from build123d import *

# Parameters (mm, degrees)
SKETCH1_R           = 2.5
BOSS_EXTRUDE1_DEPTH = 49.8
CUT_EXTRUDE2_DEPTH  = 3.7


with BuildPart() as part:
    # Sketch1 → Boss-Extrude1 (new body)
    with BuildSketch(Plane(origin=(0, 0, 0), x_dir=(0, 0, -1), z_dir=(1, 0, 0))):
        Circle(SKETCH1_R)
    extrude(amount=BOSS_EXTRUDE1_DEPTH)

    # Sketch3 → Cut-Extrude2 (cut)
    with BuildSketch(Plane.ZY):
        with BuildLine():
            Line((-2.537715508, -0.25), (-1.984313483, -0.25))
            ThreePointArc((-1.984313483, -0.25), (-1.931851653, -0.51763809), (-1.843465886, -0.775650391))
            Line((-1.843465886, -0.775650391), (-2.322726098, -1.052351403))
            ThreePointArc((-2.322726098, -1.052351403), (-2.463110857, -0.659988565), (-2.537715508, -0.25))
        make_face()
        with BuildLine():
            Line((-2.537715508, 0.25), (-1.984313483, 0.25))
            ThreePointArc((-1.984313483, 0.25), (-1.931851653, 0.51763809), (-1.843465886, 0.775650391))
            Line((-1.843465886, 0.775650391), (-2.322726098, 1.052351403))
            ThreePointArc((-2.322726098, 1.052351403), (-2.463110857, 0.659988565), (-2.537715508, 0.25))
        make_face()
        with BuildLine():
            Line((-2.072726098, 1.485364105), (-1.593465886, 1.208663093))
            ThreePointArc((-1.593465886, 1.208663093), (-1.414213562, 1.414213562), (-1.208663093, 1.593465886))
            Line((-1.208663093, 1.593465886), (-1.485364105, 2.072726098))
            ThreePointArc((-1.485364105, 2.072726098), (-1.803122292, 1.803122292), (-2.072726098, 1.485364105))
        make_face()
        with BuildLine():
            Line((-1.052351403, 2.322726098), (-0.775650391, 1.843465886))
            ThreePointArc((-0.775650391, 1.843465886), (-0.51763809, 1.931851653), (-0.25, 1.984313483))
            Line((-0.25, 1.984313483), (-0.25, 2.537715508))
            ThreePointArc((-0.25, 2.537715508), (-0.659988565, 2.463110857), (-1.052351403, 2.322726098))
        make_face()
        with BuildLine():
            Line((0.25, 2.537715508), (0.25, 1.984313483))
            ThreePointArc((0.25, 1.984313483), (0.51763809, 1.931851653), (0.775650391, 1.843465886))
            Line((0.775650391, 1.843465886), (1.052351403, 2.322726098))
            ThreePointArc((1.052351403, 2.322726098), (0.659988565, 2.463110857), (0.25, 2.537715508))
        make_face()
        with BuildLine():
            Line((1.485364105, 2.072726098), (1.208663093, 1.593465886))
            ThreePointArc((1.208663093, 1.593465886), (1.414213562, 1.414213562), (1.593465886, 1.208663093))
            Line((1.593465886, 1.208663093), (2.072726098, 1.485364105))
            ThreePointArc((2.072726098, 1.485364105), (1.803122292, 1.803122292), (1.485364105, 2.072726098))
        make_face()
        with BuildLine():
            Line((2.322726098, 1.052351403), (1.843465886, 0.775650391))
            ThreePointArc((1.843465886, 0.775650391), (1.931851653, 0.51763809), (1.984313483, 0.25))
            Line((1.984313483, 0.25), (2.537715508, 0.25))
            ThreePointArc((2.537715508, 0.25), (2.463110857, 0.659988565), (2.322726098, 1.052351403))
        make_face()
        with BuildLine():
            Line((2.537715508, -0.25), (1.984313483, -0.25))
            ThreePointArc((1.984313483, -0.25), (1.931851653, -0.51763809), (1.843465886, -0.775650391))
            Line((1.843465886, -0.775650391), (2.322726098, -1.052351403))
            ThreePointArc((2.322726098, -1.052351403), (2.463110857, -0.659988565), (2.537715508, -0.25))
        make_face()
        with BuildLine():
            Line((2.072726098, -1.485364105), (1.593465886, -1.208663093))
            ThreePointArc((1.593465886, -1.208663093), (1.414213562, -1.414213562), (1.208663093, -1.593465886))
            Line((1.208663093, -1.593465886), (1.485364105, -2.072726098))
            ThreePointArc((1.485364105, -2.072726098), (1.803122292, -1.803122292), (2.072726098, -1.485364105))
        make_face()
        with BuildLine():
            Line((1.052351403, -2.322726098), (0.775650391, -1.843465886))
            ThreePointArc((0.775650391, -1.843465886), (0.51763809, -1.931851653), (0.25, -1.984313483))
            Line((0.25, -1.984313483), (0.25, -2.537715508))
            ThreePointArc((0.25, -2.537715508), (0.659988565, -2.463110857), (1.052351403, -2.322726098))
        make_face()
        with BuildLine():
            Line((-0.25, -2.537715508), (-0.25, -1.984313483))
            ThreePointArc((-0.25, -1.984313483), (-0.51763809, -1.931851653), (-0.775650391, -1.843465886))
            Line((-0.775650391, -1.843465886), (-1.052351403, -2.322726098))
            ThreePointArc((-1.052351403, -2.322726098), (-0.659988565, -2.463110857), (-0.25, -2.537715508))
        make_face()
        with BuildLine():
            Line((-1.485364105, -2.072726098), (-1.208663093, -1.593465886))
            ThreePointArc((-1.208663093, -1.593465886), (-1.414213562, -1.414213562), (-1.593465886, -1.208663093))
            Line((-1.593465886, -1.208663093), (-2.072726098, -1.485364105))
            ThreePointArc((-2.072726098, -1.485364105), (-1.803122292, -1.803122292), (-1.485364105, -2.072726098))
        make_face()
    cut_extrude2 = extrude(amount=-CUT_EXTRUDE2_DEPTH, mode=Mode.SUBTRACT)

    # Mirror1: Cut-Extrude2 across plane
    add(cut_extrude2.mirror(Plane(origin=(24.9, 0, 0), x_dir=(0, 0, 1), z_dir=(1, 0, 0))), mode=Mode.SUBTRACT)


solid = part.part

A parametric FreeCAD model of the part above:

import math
import FreeCAD as App
import Part
import Sketcher
from FreeCAD import Vector
Q = App.Units.Quantity

doc = App.newDocument("Part")
body = doc.addObject("PartDesign::Body", "Body")

sketch1 = body.newObject("Sketcher::SketchObject", "Sketch")
sketch1.AttachmentSupport = (doc.getObject("YZ_Plane"), [""])
sketch1.MapMode = "FlatFace"
sketch1.addGeometry(Part.Circle(Vector(0, 0, 0), Vector(0, 0, 1), 2.5), False)
sketch1.addConstraint([
    Sketcher.Constraint("Coincident", 0, 3, -1, 1),
    Sketcher.Constraint("Diameter", 0, 5.0),
])
pad1 = body.newObject("PartDesign::Pad", "Pad")
pad1.Profile = sketch1
pad1.Length = 49.8

sketch2 = body.newObject("Sketcher::SketchObject", "Sketch001")
sketch2.AttachmentSupport = (doc.getObject("YZ_Plane"), [""])
sketch2.MapMode = "FlatFace"
sketch2.addGeometry([
    Part.LineSegment(Vector(-0.2, -2, 0), Vector(-0.2, -2.5, 0)),
    Part.ArcOfCircle(Part.Circle(Vector(0, 0, 0), Vector(0, 0, 1), 2.6), math.radians(-114.37), math.radians(-95.63)),
    Part.LineSegment(Vector(-1.1, -2.3, 0), Vector(-0.8, -1.8, 0)),
    Part.ArcOfCircle(Part.Circle(Vector(0, 0, 0), Vector(0, 0, 1), 2), math.radians(-112.82), math.radians(-97.18)),
    Part.LineSegment(Vector(0.2, -2.5, 0), Vector(0.2, -2, 0)),
    Part.ArcOfCircle(Part.Circle(Vector(0, 0, 0), Vector(0, 0, 1), 2), math.radians(-82.82), math.radians(-67.18)),
    Part.LineSegment(Vector(0.8, -1.8, 0), Vector(1.1, -2.3, 0)),
    Part.ArcOfCircle(Part.Circle(Vector(0, 0, 0), Vector(0, 0, 1), 2.6), math.radians(-84.37), math.radians(-65.63)),
    Part.LineSegment(Vector(1.5, -2.1, 0), Vector(1.2, -1.6, 0)),
    Part.ArcOfCircle(Part.Circle(Vector(0, 0, 0), Vector(0, 0, 1), 2), math.radians(-52.82), math.radians(-37.18)),
    Part.LineSegment(Vector(1.6, -1.2, 0), Vector(2.1, -1.5, 0)),
    Part.ArcOfCircle(Part.Circle(Vector(0, 0, 0), Vector(0, 0, 1), 2.6), math.radians(-54.37), math.radians(-35.63)),
    Part.LineSegment(Vector(2.3, -1.1, 0), Vector(1.8, -0.8, 0)),
    Part.ArcOfCircle(Part.Circle(Vector(0, 0, 0), Vector(0, 0, 1), 2), math.radians(-22.82), math.radians(-7.18)),
    Part.LineSegment(Vector(2, -0.2, 0), Vector(2.5, -0.2, 0)),
    Part.ArcOfCircle(Part.Circle(Vector(0, 0, 0), Vector(0, 0, 1), 2.6), math.radians(-24.37), math.radians(-5.63)),
    Part.LineSegment(Vector(2.5, 0.2, 0), Vector(2, 0.2, 0)),
    Part.ArcOfCircle(Part.Circle(Vector(0, 0, 0), Vector(0, 0, 1), 2), math.radians(7.18), math.radians(22.82)),
    Part.LineSegment(Vector(1.8, 0.8, 0), Vector(2.3, 1.1, 0)),
    Part.ArcOfCircle(Part.Circle(Vector(0, 0, 0), Vector(0, 0, 1), 2.6), math.radians(5.63), math.radians(24.37)),
    Part.LineSegment(Vector(2.1, 1.5, 0), Vector(1.6, 1.2, 0)),
    Part.ArcOfCircle(Part.Circle(Vector(0, 0, 0), Vector(0, 0, 1), 2), math.radians(37.18), math.radians(52.82)),
    Part.LineSegment(Vector(1.2, 1.6, 0), Vector(1.5, 2.1, 0)),
    Part.ArcOfCircle(Part.Circle(Vector(0, 0, 0), Vector(0, 0, 1), 2.6), math.radians(35.63), math.radians(54.37)),
    Part.LineSegment(Vector(1.1, 2.3, 0), Vector(0.8, 1.8, 0)),
    Part.ArcOfCircle(Part.Circle(Vector(0, 0, 0), Vector(0, 0, 1), 2), math.radians(67.18), math.radians(82.82)),
    Part.LineSegment(Vector(0.2, 2, 0), Vector(0.2, 2.5, 0)),
    Part.ArcOfCircle(Part.Circle(Vector(0, 0, 0), Vector(0, 0, 1), 2.6), math.radians(65.63), math.radians(84.37)),
    Part.LineSegment(Vector(-0.2, 2.5, 0), Vector(-0.2, 2, 0)),
    Part.ArcOfCircle(Part.Circle(Vector(0, 0, 0), Vector(0, 0, 1), 2), math.radians(97.18), math.radians(112.82)),
    Part.LineSegment(Vector(-0.8, 1.8, 0), Vector(-1.1, 2.3, 0)),
    Part.ArcOfCircle(Part.Circle(Vector(0, 0, 0), Vector(0, 0, 1), 2.6), math.radians(95.63), math.radians(114.37)),
    Part.LineSegment(Vector(-1.5, 2.1, 0), Vector(-1.2, 1.6, 0)),
    Part.ArcOfCircle(Part.Circle(Vector(0, 0, 0), Vector(0, 0, 1), 2), math.radians(127.18), math.radians(142.82)),
    Part.LineSegment(Vector(-1.6, 1.2, 0), Vector(-2.1, 1.5, 0)),
    Part.ArcOfCircle(Part.Circle(Vector(0, 0, 0), Vector(0, 0, 1), 2.6), math.radians(125.63), math.radians(144.37)),
    Part.LineSegment(Vector(-2.3, 1.1, 0), Vector(-1.8, 0.8, 0)),
    Part.ArcOfCircle(Part.Circle(Vector(0, 0, 0), Vector(0, 0, 1), 2), math.radians(157.18), math.radians(172.82)),
    Part.LineSegment(Vector(-2, 0.2, 0), Vector(-2.5, 0.2, 0)),
    Part.ArcOfCircle(Part.Circle(Vector(0, 0, 0), Vector(0, 0, 1), 2.6), math.radians(155.63), math.radians(174.37)),
    Part.LineSegment(Vector(-2.5, -0.2, 0), Vector(-2, -0.2, 0)),
    Part.ArcOfCircle(Part.Circle(Vector(0, 0, 0), Vector(0, 0, 1), 2), math.radians(-172.82), math.radians(-157.18)),
    Part.LineSegment(Vector(-1.8, -0.8, 0), Vector(-2.3, -1.1, 0)),
    Part.ArcOfCircle(Part.Circle(Vector(0, 0, 0), Vector(0, 0, 1), 2.6), math.radians(-174.37), math.radians(-155.63)),
    Part.LineSegment(Vector(-2.1, -1.5, 0), Vector(-1.6, -1.2, 0)),
    Part.ArcOfCircle(Part.Circle(Vector(0, 0, 0), Vector(0, 0, 1), 2), math.radians(-142.82), math.radians(-127.18)),
    Part.LineSegment(Vector(-1.2, -1.6, 0), Vector(-1.5, -2.1, 0)),
    Part.ArcOfCircle(Part.Circle(Vector(0, 0, 0), Vector(0, 0, 1), 2.6), math.radians(-144.37), math.radians(-125.63)),
], False)
sketch2.addConstraint([
    Sketcher.Constraint("Coincident", 0, 2, 1, 2),
    Sketcher.Constraint("Coincident", 1, 1, 2, 1),
    Sketcher.Constraint("Coincident", 2, 2, 3, 1),
    Sketcher.Constraint("Coincident", 3, 2, 0, 1),
    Sketcher.Constraint("Coincident", 4, 2, 5, 1),
    Sketcher.Constraint("Coincident", 5, 2, 6, 1),
    Sketcher.Constraint("Coincident", 6, 2, 7, 2),
    Sketcher.Constraint("Coincident", 7, 1, 4, 1),
    Sketcher.Constraint("Coincident", 8, 2, 9, 1),
    Sketcher.Constraint("Coincident", 9, 2, 10, 1),
    Sketcher.Constraint("Coincident", 10, 2, 11, 2),
    Sketcher.Constraint("Coincident", 11, 1, 8, 1),
    Sketcher.Constraint("Coincident", 12, 2, 13, 1),
    Sketcher.Constraint("Coincident", 13, 2, 14, 1),
    Sketcher.Constraint("Coincident", 14, 2, 15, 2),
    Sketcher.Constraint("Coincident", 15, 1, 12, 1),
    Sketcher.Constraint("Coincident", 16, 2, 17, 1),
    Sketcher.Constraint("Coincident", 17, 2, 18, 1),
    Sketcher.Constraint("Coincident", 18, 2, 19, 2),
    Sketcher.Constraint("Coincident", 19, 1, 16, 1),
    Sketcher.Constraint("Coincident", 20, 2, 21, 1),
    Sketcher.Constraint("Coincident", 21, 2, 22, 1),
    Sketcher.Constraint("Coincident", 22, 2, 23, 2),
    Sketcher.Constraint("Coincident", 23, 1, 20, 1),
    Sketcher.Constraint("Coincident", 24, 2, 25, 1),
    Sketcher.Constraint("Coincident", 25, 2, 26, 1),
    Sketcher.Constraint("Coincident", 26, 2, 27, 2),
    Sketcher.Constraint("Coincident", 27, 1, 24, 1),
    Sketcher.Constraint("Coincident", 28, 2, 29, 1),
    Sketcher.Constraint("Coincident", 29, 2, 30, 1),
    Sketcher.Constraint("Coincident", 30, 2, 31, 2),
    Sketcher.Constraint("Coincident", 31, 1, 28, 1),
    Sketcher.Constraint("Coincident", 32, 2, 33, 1),
    Sketcher.Constraint("Coincident", 33, 2, 34, 1),
    Sketcher.Constraint("Coincident", 34, 2, 35, 2),
    Sketcher.Constraint("Coincident", 35, 1, 32, 1),
    Sketcher.Constraint("Coincident", 36, 2, 37, 1),
    Sketcher.Constraint("Coincident", 37, 2, 38, 1),
    Sketcher.Constraint("Coincident", 38, 2, 39, 2),
    Sketcher.Constraint("Coincident", 39, 1, 36, 1),
    Sketcher.Constraint("Coincident", 40, 2, 41, 1),
    Sketcher.Constraint("Coincident", 41, 2, 42, 1),
    Sketcher.Constraint("Coincident", 42, 2, 43, 2),
    Sketcher.Constraint("Coincident", 43, 1, 40, 1),
    Sketcher.Constraint("Coincident", 44, 2, 45, 1),
    Sketcher.Constraint("Coincident", 45, 2, 46, 1),
    Sketcher.Constraint("Coincident", 46, 2, 47, 2),
    Sketcher.Constraint("Coincident", 47, 1, 44, 1),
    Sketcher.Constraint("Vertical", 0),
    Sketcher.Constraint("Vertical", 4),
    Sketcher.Constraint("Horizontal", 14),
    Sketcher.Constraint("Horizontal", 16),
    Sketcher.Constraint("Vertical", 26),
    Sketcher.Constraint("Vertical", 28),
    Sketcher.Constraint("Horizontal", 38),
    Sketcher.Constraint("Horizontal", 40),
    Sketcher.Constraint("Coincident", 1, 3, -1, 1),
    Sketcher.Constraint("Coincident", 3, 3, -1, 1),
    Sketcher.Constraint("Coincident", 5, 3, -1, 1),
    Sketcher.Constraint("Coincident", 7, 3, -1, 1),
    Sketcher.Constraint("Coincident", 9, 3, -1, 1),
    Sketcher.Constraint("Coincident", 11, 3, -1, 1),
    Sketcher.Constraint("Coincident", 13, 3, -1, 1),
    Sketcher.Constraint("Coincident", 15, 3, -1, 1),
    Sketcher.Constraint("Coincident", 17, 3, -1, 1),
    Sketcher.Constraint("Coincident", 19, 3, -1, 1),
    Sketcher.Constraint("Coincident", 21, 3, -1, 1),
    Sketcher.Constraint("Coincident", 23, 3, -1, 1),
    Sketcher.Constraint("Coincident", 25, 3, -1, 1),
    Sketcher.Constraint("Coincident", 27, 3, -1, 1),
    Sketcher.Constraint("Coincident", 29, 3, -1, 1),
    Sketcher.Constraint("Coincident", 31, 3, -1, 1),
    Sketcher.Constraint("Coincident", 33, 3, -1, 1),
    Sketcher.Constraint("Coincident", 35, 3, -1, 1),
    Sketcher.Constraint("Coincident", 37, 3, -1, 1),
    Sketcher.Constraint("Coincident", 39, 3, -1, 1),
    Sketcher.Constraint("Coincident", 41, 3, -1, 1),
    Sketcher.Constraint("Coincident", 43, 3, -1, 1),
    Sketcher.Constraint("Coincident", 45, 3, -1, 1),
    Sketcher.Constraint("Coincident", 47, 3, -1, 1),
    Sketcher.Constraint("Equal", 3, 5),
    Sketcher.Constraint("Equal", 1, 7),
    Sketcher.Constraint("Equal", 5, 9),
    Sketcher.Constraint("Equal", 7, 11),
    Sketcher.Constraint("Equal", 9, 13),
    Sketcher.Constraint("Equal", 11, 15),
    Sketcher.Constraint("Equal", 13, 17),
    Sketcher.Constraint("Equal", 15, 19),
    Sketcher.Constraint("Equal", 17, 21),
    Sketcher.Constraint("Equal", 19, 23),
    Sketcher.Constraint("Equal", 21, 25),
    Sketcher.Constraint("Equal", 23, 27),
    Sketcher.Constraint("Equal", 25, 29),
    Sketcher.Constraint("Equal", 27, 31),
    Sketcher.Constraint("Equal", 29, 33),
    Sketcher.Constraint("Equal", 31, 35),
    Sketcher.Constraint("Equal", 33, 37),
    Sketcher.Constraint("Equal", 35, 39),
    Sketcher.Constraint("Equal", 37, 41),
    Sketcher.Constraint("Equal", 39, 43),
    Sketcher.Constraint("Equal", 41, 45),
    Sketcher.Constraint("Equal", 43, 47),
    Sketcher.Constraint("Parallel", 6, 8),
    Sketcher.Constraint("Perpendicular", 2, 10),
    Sketcher.Constraint("Parallel", 10, 12),
    Sketcher.Constraint("Perpendicular", 8, 18),
    Sketcher.Constraint("Parallel", 18, 20),
    Sketcher.Constraint("Perpendicular", 12, 22),
    Sketcher.Constraint("Parallel", 22, 24),
    Sketcher.Constraint("Perpendicular", 20, 30),
    Sketcher.Constraint("Parallel", 30, 32),
    Sketcher.Constraint("Perpendicular", 24, 34),
    Sketcher.Constraint("Parallel", 34, 36),
    Sketcher.Constraint("Perpendicular", 32, 42),
    Sketcher.Constraint("Parallel", 42, 44),
    Sketcher.Constraint("Perpendicular", 36, 46),
    Sketcher.Constraint("Horizontal", 3, 2, 4, 2),
    Sketcher.Constraint("Horizontal", 2, 2, 5, 2),
    Sketcher.Constraint("Horizontal", 1, 1, 6, 2),
    Sketcher.Constraint("Horizontal", 25, 2, 28, 2),
    Sketcher.Constraint("Horizontal", 24, 2, 29, 2),
    Sketcher.Constraint("Horizontal", 21, 2, 32, 2),
    Sketcher.Constraint("Horizontal", 20, 2, 33, 2),
    Sketcher.Constraint("Horizontal", 17, 2, 36, 2),
    Sketcher.Constraint("Horizontal", 19, 1, 37, 2),
    Sketcher.Constraint("Horizontal", 14, 2, 40, 2),
    Sketcher.Constraint("Horizontal", 12, 2, 41, 2),
    Sketcher.Constraint("Horizontal", 9, 2, 44, 2),
    Sketcher.Constraint("Horizontal", 8, 2, 45, 2),
    Sketcher.Constraint("Vertical", 13, 2, 16, 2),
    Sketcher.Constraint("Vertical", 12, 2, 17, 2),
    Sketcher.Constraint("Vertical", 9, 2, 20, 2),
    Sketcher.Constraint("Vertical", 8, 2, 21, 2),
    Sketcher.Constraint("Vertical", 5, 2, 24, 2),
    Sketcher.Constraint("Vertical", 7, 1, 25, 2),
    Sketcher.Constraint("Equal", 40, 0),
    Sketcher.Constraint("Equal", 6, 8),
    Sketcher.Constraint("Equal", 8, 10),
    Sketcher.Constraint("Equal", 10, 12),
    Sketcher.Constraint("Radius", 3, 2.0),
    Sketcher.Constraint("Angle", 2, Q("60 deg")),
    Sketcher.Constraint("Radius", 1, 2.55),
    Sketcher.Constraint("DistanceX", 0, 2, -1, 1, 0.25),
    Sketcher.Constraint("DistanceX", 1, 1, -1, 1, 1.052351),
])
pocket1 = body.newObject("PartDesign::Pocket", "Pocket")
pocket1.Profile = sketch2
pocket1.Length = 3.7
pocket1.Reversed = True
doc.recompute()

datumplane = body.newObject("PartDesign::Plane", "DatumPlane")
datumplane.AttachmentSupport = (doc.getObject("YZ_Plane"), [""])
datumplane.MapMode = "FlatFace"
datumplane.AttachmentOffset = App.Placement(Vector(0, 0, 24.9), App.Rotation())
mirrored = body.newObject("PartDesign::Mirrored", "Mirrored")
mirrored.Originals = [pocket1]
mirrored.MirrorPlane = (datumplane, [""])
body.Tip = mirrored

doc.recompute()
